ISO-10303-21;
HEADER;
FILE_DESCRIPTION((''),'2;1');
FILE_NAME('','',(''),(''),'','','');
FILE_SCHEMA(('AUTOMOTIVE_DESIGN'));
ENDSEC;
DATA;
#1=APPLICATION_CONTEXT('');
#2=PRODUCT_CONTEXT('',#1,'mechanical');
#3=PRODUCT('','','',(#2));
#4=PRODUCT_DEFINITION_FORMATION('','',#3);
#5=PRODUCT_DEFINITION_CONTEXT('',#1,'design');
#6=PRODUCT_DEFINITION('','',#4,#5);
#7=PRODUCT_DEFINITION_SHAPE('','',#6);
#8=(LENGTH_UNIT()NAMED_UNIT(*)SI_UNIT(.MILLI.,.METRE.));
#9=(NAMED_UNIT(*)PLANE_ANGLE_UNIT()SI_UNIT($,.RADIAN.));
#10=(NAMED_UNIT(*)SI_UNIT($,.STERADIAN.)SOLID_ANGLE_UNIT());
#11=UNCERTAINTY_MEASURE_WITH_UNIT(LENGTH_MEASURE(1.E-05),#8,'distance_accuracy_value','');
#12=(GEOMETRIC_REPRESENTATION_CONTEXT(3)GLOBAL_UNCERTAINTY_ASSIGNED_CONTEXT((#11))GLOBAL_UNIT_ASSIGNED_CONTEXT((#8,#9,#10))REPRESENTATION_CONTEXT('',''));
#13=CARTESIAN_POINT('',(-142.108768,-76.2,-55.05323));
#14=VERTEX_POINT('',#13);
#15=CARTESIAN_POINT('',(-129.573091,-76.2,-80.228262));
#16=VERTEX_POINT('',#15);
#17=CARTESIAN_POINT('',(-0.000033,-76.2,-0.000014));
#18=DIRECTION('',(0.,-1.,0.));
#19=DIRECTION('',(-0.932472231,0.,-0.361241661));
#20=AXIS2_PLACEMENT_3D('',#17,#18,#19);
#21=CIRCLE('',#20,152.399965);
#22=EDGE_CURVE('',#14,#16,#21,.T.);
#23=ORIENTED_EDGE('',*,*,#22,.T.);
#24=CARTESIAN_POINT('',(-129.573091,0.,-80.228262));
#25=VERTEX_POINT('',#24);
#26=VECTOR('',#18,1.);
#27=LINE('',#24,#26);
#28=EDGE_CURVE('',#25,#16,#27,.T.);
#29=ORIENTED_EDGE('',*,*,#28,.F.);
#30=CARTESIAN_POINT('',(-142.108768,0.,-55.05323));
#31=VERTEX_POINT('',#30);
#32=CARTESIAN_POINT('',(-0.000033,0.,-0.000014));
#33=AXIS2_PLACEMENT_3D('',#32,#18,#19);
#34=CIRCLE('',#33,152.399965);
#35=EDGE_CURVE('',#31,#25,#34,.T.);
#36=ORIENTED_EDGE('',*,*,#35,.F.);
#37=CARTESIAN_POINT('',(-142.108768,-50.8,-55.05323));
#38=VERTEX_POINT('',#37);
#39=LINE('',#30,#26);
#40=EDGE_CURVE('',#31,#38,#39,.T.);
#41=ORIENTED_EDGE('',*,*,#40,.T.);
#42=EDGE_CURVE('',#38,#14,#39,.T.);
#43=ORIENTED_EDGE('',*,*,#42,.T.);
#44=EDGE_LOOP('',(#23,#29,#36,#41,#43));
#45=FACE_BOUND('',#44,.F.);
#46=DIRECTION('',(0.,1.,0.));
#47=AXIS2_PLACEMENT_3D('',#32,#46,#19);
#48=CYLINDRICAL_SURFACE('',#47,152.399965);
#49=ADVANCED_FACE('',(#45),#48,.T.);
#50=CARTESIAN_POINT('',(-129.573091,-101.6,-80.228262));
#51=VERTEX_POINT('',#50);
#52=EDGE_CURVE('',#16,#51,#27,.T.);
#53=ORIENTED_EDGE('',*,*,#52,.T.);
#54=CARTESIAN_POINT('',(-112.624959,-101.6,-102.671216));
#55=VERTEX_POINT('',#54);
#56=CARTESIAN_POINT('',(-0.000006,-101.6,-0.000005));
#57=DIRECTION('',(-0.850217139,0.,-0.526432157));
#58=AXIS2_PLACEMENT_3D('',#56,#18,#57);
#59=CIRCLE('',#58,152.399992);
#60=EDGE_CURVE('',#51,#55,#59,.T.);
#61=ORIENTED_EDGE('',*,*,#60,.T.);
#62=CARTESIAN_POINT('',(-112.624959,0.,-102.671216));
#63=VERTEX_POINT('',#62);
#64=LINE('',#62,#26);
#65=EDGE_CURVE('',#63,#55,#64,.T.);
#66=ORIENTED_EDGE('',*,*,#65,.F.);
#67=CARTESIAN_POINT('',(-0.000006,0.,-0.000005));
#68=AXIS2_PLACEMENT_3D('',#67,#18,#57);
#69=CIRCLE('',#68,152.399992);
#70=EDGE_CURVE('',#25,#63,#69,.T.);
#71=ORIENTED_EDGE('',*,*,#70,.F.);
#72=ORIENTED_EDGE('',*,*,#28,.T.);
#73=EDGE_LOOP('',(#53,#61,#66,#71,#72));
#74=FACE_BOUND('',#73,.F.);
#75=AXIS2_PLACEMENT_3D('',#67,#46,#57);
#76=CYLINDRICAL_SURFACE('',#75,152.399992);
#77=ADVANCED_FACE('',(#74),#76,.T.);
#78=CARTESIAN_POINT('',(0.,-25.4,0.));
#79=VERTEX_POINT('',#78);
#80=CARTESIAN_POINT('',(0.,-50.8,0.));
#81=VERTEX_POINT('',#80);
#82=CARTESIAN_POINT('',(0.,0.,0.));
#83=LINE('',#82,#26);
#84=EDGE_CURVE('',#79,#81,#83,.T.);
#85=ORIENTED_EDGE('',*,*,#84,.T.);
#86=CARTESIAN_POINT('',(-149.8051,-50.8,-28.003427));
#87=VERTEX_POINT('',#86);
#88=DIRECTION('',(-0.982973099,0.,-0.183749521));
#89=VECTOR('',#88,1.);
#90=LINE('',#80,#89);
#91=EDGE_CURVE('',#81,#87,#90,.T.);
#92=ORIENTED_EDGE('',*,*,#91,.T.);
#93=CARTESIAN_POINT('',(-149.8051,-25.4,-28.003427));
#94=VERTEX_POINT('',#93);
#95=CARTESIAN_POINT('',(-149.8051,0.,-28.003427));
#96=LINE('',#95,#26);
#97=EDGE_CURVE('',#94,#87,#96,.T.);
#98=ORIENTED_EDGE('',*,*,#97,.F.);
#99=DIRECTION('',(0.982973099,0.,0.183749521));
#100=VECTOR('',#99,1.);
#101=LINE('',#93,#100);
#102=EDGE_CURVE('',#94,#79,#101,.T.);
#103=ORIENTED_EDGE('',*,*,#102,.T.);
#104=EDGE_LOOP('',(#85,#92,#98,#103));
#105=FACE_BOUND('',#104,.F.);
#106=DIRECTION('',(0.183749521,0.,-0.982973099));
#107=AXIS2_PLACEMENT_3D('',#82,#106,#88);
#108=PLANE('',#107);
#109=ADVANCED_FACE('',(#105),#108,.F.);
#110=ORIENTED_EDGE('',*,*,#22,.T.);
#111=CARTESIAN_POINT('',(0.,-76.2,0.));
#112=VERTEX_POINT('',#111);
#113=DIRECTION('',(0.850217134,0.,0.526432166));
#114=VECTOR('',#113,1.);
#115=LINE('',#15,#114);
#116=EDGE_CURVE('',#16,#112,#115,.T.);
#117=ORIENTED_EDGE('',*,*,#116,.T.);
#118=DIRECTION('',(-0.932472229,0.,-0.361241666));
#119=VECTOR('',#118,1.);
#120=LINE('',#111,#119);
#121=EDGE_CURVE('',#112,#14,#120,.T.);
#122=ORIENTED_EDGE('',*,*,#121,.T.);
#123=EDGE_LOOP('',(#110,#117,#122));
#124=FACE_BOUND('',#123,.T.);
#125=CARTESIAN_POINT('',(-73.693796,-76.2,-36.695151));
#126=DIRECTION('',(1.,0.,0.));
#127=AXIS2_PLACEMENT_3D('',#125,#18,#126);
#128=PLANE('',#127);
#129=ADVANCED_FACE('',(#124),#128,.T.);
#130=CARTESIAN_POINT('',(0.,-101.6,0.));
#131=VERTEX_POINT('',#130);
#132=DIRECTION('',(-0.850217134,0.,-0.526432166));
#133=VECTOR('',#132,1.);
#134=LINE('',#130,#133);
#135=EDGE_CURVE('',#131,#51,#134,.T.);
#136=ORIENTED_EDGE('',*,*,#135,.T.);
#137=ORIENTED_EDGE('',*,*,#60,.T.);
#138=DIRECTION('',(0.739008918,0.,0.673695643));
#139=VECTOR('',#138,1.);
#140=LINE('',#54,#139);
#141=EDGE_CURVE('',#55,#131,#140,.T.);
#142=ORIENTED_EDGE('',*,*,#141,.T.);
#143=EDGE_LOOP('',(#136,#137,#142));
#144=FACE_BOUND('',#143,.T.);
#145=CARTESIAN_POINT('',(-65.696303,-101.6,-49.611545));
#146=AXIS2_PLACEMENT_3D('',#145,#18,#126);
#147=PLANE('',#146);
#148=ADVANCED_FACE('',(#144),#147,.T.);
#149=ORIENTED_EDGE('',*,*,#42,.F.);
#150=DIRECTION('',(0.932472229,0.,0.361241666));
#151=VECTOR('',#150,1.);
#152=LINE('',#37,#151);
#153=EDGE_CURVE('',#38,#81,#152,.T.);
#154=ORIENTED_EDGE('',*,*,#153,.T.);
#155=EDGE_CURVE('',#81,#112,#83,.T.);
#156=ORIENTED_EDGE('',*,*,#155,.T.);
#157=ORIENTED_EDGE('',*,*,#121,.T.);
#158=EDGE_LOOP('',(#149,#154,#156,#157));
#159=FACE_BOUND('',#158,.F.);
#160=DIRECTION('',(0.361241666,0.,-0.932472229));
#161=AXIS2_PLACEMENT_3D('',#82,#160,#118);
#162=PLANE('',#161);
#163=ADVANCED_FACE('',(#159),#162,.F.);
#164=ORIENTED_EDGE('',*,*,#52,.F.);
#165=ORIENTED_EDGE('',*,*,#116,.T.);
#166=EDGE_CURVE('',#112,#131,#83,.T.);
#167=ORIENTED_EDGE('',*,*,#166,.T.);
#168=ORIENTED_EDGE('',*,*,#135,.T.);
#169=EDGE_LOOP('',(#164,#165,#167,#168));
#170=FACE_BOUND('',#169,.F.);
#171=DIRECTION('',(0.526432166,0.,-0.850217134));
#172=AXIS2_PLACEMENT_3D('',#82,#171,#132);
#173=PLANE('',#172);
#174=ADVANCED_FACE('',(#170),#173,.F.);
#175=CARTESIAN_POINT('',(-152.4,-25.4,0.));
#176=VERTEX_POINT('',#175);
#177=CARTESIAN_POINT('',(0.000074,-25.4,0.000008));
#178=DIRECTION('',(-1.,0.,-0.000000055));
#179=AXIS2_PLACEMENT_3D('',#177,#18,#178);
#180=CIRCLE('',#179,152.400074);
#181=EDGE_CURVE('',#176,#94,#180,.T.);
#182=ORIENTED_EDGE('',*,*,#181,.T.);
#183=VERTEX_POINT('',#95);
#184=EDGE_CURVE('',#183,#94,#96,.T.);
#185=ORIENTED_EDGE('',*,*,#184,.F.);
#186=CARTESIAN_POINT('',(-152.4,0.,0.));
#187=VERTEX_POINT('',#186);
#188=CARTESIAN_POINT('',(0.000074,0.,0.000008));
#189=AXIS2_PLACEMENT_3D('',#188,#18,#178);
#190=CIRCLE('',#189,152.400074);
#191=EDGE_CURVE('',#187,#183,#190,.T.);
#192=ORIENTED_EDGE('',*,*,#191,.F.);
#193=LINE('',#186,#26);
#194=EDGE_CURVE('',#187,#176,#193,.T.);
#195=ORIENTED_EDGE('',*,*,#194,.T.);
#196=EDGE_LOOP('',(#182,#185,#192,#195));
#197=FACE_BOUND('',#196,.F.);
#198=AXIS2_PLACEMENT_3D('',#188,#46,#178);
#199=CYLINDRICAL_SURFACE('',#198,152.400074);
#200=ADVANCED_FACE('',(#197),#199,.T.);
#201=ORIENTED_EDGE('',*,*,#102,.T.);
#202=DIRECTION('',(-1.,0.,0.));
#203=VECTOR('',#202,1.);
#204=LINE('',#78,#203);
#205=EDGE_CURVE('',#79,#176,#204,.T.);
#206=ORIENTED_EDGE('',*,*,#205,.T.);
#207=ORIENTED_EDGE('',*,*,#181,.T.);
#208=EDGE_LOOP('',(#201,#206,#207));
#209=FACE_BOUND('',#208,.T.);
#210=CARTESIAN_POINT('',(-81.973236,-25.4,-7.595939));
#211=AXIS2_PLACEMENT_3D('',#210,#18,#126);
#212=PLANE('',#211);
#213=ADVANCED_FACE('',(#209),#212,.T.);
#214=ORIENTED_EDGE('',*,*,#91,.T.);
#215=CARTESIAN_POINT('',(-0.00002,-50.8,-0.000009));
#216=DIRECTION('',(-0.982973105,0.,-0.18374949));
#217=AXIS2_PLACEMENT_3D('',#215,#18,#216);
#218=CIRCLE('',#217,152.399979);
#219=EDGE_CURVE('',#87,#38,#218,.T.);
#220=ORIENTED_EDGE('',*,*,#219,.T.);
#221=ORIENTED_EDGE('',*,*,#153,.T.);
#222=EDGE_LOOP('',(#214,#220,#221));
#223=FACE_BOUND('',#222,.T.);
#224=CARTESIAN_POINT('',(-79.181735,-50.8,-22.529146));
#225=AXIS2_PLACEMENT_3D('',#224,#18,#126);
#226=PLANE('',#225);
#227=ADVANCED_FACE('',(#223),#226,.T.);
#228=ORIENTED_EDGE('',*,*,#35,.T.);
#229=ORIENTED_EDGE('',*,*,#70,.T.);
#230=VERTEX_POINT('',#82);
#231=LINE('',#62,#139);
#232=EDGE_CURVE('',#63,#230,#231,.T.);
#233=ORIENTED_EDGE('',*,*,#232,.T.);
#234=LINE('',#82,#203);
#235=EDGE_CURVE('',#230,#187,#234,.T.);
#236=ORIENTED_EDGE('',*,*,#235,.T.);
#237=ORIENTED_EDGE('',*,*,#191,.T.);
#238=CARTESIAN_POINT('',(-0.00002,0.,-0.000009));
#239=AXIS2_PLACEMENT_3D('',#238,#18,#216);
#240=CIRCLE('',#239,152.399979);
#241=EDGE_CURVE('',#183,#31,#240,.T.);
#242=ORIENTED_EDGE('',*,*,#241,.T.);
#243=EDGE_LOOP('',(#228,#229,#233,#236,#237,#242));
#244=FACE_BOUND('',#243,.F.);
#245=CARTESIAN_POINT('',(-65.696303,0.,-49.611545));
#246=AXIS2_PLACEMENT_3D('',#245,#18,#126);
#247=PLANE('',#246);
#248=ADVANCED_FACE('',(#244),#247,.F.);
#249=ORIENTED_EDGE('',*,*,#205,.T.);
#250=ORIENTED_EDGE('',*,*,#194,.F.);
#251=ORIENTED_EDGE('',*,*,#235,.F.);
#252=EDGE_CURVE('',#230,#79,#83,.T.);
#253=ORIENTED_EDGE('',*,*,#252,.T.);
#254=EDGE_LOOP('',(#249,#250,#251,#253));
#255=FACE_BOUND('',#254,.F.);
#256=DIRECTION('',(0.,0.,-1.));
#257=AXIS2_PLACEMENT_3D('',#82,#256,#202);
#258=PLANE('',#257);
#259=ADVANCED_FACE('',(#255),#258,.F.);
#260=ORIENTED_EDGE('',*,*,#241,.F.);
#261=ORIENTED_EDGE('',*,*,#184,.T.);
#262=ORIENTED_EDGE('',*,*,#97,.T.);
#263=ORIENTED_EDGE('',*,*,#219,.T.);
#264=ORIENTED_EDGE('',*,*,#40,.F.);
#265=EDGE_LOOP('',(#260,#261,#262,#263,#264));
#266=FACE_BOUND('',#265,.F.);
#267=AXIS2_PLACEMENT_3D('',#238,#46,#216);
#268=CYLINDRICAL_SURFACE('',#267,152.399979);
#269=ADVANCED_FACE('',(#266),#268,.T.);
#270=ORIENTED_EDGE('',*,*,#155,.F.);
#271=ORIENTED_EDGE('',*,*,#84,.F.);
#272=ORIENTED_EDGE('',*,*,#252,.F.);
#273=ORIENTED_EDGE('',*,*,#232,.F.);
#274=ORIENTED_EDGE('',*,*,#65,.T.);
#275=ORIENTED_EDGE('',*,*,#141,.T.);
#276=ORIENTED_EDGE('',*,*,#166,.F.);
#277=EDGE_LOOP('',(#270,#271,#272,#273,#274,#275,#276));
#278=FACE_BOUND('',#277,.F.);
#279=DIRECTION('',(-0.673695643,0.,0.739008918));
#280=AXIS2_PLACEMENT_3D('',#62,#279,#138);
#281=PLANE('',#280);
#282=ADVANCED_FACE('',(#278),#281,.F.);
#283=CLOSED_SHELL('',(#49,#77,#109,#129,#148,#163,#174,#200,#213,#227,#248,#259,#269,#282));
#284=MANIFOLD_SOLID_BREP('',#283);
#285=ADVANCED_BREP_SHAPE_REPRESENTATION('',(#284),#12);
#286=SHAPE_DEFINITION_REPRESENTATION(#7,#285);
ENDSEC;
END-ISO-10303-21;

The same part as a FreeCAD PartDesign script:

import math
import FreeCAD as App
import Part
import Sketcher
from FreeCAD import Vector
Q = App.Units.Quantity

doc = App.newDocument("Part")
body = doc.addObject("PartDesign::Body", "Body")

# Sketch on XZ plane
sketch1 = body.newObject("Sketcher::SketchObject", "Sketch")
sketch1.AttachmentSupport = (doc.getObject("XZ_Plane"), [""])
sketch1.MapMode = "FlatFace"
sketch1.addGeometry([
    Part.LineSegment(Vector(0, 0, 0), Vector(-152, 0, 0)),
    Part.ArcOfCircle(Part.Circle(Vector(0, 0, 0), Vector(0, 0, 1), 152), math.radians(-180), math.radians(-169.41)),
    Part.LineSegment(Vector(-150, -28, 0), Vector(0, 0, 0)),
], False)
sketch1.addConstraint([
    Sketcher.Constraint("Coincident", 0, 2, 1, 1),
    Sketcher.Constraint("Coincident", 1, 2, 2, 1),
    Sketcher.Constraint("Coincident", 2, 2, 0, 1),
    Sketcher.Constraint("Horizontal", 0),
    Sketcher.Constraint("Coincident", 2, 2, -1, 1),
    Sketcher.Constraint("DistanceX", 0, 2, 0, 1, Q("6 in")),
    Sketcher.Constraint("Distance", 2, Q("6 in")),
    Sketcher.Constraint("Radius", 1, Q("152.400074 mm")),
    Sketcher.Constraint("DistanceX", 1, 2, -1, 1, Q("149.8051 mm")),
])
pad1 = body.newObject("PartDesign::Pad", "Pad")
pad1.Profile = sketch1
pad1.Length = Q("1 in")

# Sketch on XZ plane
sketch2 = body.newObject("Sketcher::SketchObject", "Sketch001")
sketch2.AttachmentSupport = (doc.getObject("XZ_Plane"), [""])
sketch2.MapMode = "FlatFace"
sketch2.addGeometry([
    Part.LineSegment(Vector(-142, -55, 0), Vector(0, 0, 0)),
    Part.LineSegment(Vector(0, 0, 0), Vector(-150, -28, 0)),
    Part.ArcOfCircle(Part.Circle(Vector(0, 0, 0), Vector(0, 0, 1), 152), math.radians(-169.41), math.radians(-158.82)),
], False)
sketch2.addConstraint([
    Sketcher.Constraint("Coincident", 0, 2, 1, 1),
    Sketcher.Constraint("Coincident", 1, 2, 2, 1),
    Sketcher.Constraint("Coincident", 2, 2, 0, 1),
    Sketcher.Constraint("Coincident", 0, 2, -1, 1),
    Sketcher.Constraint("Equal", 0, 1),
    Sketcher.Constraint("Distance", 0, Q("6 in")),
    Sketcher.Constraint("Radius", 2, Q("152.399979 mm")),
    Sketcher.Constraint("DistanceX", 1, 2, -1, 1, Q("149.8051 mm")),
    Sketcher.Constraint("DistanceX", 2, 2, -1, 1, Q("142.108768 mm")),
])
pad2 = body.newObject("PartDesign::Pad", "Pad001")
pad2.Profile = sketch2
pad2.Length = Q("2 in")

# Sketch on XZ plane
sketch3 = body.newObject("Sketcher::SketchObject", "Sketch002")
sketch3.AttachmentSupport = (doc.getObject("XZ_Plane"), [""])
sketch3.MapMode = "FlatFace"
sketch3.addGeometry([
    Part.LineSegment(Vector(-130, -80, 0), Vector(0, 0, 0)),
    Part.LineSegment(Vector(0, 0, 0), Vector(-142, -55, 0)),
    Part.ArcOfCircle(Part.Circle(Vector(0, 0, 0), Vector(0, 0, 1), 152), math.radians(-158.82), math.radians(-148.24)),
], False)
sketch3.addConstraint([
    Sketcher.Constraint("Coincident", 0, 2, 1, 1),
    Sketcher.Constraint("Coincident", 1, 2, 2, 1),
    Sketcher.Constraint("Coincident", 2, 2, 0, 1),
    Sketcher.Constraint("Coincident", 0, 2, -1, 1),
    Sketcher.Constraint("Equal", 0, 1),
    Sketcher.Constraint("Distance", 0, Q("6 in")),
    Sketcher.Constraint("Radius", 2, Q("152.399965 mm")),
    Sketcher.Constraint("DistanceX", 1, 2, -1, 1, Q("142.108768 mm")),
    Sketcher.Constraint("DistanceX", 2, 2, -1, 1, Q("129.573091 mm")),
])
pad3 = body.newObject("PartDesign::Pad", "Pad002")
pad3.Profile = sketch3
pad3.Length = Q("3 in")

# Sketch on XZ plane
sketch4 = body.newObject("Sketcher::SketchObject", "Sketch003")
sketch4.AttachmentSupport = (doc.getObject("XZ_Plane"), [""])
sketch4.MapMode = "FlatFace"
sketch4.addGeometry([
    Part.LineSegment(Vector(-113, -103, 0), Vector(0, 0, 0)),
    Part.LineSegment(Vector(0, 0, 0), Vector(-130, -80, 0)),
    Part.ArcOfCircle(Part.Circle(Vector(0, 0, 0), Vector(0, 0, 1), 152), math.radians(-148.24), math.radians(-137.65)),
], False)
sketch4.addConstraint([
    Sketcher.Constraint("Coincident", 0, 2, 1, 1),
    Sketcher.Constraint("Coincident", 1, 2, 2, 1),
    Sketcher.Constraint("Coincident", 2, 2, 0, 1),
    Sketcher.Constraint("Coincident", 2, 3, -1, 1),
    Sketcher.Constraint("Coincident", 0, 2, -1, 1),
    Sketcher.Constraint("Distance", 0, Q("6 in")),
    Sketcher.Constraint("DistanceX", 1, 2, -1, 1, Q("129.573091 mm")),
    Sketcher.Constraint("DistanceX", 2, 2, -1, 1, Q("112.624959 mm")),
])
pad4 = body.newObject("PartDesign::Pad", "Pad003")
pad4.Profile = sketch4
pad4.Length = Q("4 in")

doc.recompute()
